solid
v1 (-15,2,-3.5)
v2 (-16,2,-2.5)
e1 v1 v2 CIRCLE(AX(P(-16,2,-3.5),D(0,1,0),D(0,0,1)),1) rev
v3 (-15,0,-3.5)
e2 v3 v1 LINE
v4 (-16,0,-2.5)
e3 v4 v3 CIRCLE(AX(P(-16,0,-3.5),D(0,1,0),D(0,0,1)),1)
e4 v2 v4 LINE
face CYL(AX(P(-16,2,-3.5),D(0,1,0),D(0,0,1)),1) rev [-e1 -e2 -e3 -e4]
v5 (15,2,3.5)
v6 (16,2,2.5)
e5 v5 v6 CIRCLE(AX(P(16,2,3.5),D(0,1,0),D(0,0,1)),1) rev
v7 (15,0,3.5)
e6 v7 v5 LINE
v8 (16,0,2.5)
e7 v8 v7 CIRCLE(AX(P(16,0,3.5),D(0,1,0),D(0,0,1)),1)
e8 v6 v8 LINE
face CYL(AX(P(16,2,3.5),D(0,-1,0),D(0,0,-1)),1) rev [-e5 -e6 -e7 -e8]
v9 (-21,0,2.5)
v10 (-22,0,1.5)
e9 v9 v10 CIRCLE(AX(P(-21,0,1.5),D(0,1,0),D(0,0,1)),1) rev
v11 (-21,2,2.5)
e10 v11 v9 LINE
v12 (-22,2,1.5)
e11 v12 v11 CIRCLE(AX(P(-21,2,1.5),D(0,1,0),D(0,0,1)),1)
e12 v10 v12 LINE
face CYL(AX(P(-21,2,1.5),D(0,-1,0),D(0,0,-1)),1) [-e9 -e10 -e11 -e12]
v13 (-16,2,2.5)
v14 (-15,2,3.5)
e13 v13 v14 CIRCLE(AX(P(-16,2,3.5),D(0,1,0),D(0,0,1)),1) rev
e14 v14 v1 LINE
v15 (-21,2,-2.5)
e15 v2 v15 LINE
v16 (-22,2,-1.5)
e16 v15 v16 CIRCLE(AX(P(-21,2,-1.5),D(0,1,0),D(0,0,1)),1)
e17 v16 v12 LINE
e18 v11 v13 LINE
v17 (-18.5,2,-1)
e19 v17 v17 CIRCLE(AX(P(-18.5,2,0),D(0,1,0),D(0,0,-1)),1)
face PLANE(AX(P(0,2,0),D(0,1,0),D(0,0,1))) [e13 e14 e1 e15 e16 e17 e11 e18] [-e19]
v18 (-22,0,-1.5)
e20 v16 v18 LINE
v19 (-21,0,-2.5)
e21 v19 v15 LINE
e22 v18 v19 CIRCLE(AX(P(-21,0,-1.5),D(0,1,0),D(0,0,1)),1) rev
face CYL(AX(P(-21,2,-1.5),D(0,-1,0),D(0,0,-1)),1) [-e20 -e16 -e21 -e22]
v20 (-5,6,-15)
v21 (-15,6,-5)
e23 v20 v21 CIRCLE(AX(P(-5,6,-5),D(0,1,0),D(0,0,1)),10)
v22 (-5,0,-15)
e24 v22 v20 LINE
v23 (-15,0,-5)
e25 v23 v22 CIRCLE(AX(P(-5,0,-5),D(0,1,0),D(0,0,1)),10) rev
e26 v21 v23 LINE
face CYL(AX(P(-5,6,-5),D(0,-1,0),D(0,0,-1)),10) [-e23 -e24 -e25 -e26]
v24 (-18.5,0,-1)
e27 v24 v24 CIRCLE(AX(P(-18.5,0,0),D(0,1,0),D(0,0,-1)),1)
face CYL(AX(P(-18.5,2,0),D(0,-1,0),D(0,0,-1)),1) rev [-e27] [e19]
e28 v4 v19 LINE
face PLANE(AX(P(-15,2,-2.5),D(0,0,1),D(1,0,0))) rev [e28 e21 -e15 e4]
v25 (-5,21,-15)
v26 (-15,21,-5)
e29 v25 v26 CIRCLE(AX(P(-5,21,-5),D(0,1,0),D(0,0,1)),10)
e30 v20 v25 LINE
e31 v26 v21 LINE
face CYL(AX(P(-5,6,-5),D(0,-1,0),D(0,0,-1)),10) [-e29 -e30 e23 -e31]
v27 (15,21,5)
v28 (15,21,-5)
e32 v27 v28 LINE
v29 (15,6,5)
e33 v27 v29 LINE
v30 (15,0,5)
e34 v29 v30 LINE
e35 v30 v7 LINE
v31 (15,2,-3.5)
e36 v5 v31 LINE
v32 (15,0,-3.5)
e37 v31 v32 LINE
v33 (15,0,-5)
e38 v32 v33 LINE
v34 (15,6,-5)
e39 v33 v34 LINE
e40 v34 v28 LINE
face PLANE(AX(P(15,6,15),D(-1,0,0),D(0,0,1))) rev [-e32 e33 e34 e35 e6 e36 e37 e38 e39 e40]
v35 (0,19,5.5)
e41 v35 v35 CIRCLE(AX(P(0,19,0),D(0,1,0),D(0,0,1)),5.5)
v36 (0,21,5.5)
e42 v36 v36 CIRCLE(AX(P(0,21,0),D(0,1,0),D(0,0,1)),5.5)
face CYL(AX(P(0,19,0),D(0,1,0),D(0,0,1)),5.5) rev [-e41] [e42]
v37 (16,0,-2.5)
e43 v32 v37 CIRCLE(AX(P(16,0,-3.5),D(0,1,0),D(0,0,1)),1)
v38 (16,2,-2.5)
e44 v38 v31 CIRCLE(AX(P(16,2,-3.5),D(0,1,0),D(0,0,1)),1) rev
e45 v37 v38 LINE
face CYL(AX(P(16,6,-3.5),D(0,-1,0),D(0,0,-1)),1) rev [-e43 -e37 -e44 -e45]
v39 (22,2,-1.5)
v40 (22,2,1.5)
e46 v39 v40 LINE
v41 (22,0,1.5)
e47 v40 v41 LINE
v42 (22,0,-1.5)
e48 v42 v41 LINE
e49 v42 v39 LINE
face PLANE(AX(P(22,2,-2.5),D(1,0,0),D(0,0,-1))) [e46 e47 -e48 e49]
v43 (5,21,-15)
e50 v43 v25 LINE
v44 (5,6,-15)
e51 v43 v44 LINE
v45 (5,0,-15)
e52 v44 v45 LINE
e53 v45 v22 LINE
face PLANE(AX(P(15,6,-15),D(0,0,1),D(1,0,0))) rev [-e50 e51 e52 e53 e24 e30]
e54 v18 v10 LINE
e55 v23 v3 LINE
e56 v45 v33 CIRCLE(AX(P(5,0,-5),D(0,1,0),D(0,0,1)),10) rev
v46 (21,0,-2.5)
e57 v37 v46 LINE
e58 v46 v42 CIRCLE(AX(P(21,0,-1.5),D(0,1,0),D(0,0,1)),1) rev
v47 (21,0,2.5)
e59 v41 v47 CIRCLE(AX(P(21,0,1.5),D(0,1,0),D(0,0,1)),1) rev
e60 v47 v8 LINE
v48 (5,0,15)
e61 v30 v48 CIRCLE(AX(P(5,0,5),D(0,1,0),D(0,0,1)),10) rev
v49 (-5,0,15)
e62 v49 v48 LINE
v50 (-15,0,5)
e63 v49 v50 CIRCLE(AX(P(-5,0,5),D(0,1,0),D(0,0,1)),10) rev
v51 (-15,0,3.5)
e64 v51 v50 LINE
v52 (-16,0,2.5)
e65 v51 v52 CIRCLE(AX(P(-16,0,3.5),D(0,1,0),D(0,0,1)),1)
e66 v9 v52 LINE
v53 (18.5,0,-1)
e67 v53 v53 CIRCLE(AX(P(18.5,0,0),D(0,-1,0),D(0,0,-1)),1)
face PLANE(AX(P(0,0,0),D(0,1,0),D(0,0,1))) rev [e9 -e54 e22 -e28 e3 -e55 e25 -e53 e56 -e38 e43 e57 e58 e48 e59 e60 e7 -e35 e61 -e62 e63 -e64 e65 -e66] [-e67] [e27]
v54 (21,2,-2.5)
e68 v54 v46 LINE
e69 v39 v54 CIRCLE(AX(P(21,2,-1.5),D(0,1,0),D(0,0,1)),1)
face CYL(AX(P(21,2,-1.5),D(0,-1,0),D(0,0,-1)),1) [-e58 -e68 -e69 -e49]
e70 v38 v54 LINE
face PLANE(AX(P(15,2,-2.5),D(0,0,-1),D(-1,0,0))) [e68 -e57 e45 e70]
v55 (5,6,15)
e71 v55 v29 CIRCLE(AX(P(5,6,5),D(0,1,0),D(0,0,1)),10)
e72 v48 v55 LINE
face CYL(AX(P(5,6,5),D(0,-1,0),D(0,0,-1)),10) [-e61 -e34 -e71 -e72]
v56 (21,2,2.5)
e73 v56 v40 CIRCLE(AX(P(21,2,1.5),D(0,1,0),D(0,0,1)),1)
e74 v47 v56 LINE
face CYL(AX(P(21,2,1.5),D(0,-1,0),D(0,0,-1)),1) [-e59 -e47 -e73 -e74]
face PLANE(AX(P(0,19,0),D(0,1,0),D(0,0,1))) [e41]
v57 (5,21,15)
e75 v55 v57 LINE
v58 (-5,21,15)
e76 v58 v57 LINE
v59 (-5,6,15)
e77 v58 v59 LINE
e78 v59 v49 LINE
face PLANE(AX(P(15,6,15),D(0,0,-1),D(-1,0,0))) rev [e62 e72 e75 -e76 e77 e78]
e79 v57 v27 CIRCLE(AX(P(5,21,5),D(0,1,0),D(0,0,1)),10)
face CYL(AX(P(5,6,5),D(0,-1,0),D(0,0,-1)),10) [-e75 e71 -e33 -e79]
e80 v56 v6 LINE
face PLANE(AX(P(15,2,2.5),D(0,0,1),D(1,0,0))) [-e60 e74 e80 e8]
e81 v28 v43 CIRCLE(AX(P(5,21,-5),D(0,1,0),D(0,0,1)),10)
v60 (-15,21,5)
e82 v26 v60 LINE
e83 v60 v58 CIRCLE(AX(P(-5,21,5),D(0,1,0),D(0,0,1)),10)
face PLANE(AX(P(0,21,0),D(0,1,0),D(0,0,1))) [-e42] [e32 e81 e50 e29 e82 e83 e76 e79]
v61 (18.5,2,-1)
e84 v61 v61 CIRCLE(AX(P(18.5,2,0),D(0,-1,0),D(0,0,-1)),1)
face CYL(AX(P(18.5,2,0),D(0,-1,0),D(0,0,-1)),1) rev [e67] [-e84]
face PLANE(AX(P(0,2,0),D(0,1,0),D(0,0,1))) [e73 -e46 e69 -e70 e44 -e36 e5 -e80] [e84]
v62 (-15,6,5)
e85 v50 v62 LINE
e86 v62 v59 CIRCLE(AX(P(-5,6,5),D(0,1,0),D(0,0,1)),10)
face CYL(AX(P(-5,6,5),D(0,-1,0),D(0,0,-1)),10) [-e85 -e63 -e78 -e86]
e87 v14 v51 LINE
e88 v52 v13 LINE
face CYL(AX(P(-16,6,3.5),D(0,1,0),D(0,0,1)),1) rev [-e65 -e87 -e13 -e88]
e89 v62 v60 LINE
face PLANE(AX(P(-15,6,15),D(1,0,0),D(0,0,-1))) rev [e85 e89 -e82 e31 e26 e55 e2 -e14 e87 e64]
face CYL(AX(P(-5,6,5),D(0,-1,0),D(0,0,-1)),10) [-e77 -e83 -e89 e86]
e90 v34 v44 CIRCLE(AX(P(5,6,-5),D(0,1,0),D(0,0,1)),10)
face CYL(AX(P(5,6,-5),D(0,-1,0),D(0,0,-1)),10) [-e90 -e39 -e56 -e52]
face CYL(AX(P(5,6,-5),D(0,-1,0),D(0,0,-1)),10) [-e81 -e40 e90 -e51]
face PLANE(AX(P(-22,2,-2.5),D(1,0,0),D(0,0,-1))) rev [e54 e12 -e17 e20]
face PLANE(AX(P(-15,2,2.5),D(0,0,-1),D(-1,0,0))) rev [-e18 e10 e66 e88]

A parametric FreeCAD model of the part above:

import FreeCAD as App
import Part
import Sketcher
from FreeCAD import Vector


def edges_at(feature, points):
    """Names of the edges that pass closest to the given points."""
    edges = feature.Shape.Edges
    near = lambda p: min(range(len(edges)), key=lambda i: edges[i].distToShape(Part.Vertex(*p))[0])
    return sorted({f"Edge{near(p) + 1}" for p in points})

doc = App.newDocument("Part")
params = doc.addObject("Spreadsheet::Sheet", "Params")
for row, (alias, value) in enumerate([
    ("sketch1_width", "30 mm"),
    ("pad1_length", "6 mm"),
    ("fillet_radius", "10 mm"),
    ("sketch2_diameter", "2 mm"),
    ("sketch2_width", "7 mm"),
    ("sketch2_height", "5 mm"),
    ("pad2_length", "2 mm"),
    ("fillet2_radius", "1 mm"),
    ("sketch3_width", "30 mm"),
    ("pad3_length", "15 mm"),
    ("fillet3_radius", "10 mm"),
    ("sketch4_diameter", "11 mm"),
    ("pocket1_length", "2 mm"),
], start=1):
    params.set(f"A{row}", alias)
    params.set(f"B{row}", "=" + value)
    params.setAlias(f"B{row}", alias)

body = doc.addObject("PartDesign::Body", "Body")

# Sketch on XZ plane
sketch1 = doc.addObject("Sketcher::SketchObject", "Sketch")
body.addObject(sketch1)
sketch1.AttachmentSupport = (doc.XZ_Plane, [""])
sketch1.MapMode = "FlatFace"
sketch1.addGeometry([
    Part.LineSegment(Vector(-15, -15, 0), Vector(-15, 15, 0)),
    Part.LineSegment(Vector(-15, 15, 0), Vector(15, 15, 0)),
    Part.LineSegment(Vector(15, 15, 0), Vector(15, -15, 0)),
    Part.LineSegment(Vector(15, -15, 0), Vector(-15, -15, 0)),
], False)
sketch1.addConstraint([
    Sketcher.Constraint("Coincident", 0, 2, 1, 1),
    Sketcher.Constraint("Coincident", 1, 2, 2, 1),
    Sketcher.Constraint("Coincident", 2, 2, 3, 1),
    Sketcher.Constraint("Coincident", 3, 2, 0, 1),
    Sketcher.Constraint("Vertical", 0),
    Sketcher.Constraint("Horizontal", 1),
    Sketcher.Constraint("Vertical", 2),
    Sketcher.Constraint("Horizontal", 3),
    Sketcher.Constraint("Symmetric", 0, 2, 2, 2, -1, 1),
    Sketcher.Constraint("Equal", 3, 0),
    Sketcher.Constraint("DistanceX", 1, 1, 1, 2, 30.0),
])
sketch1.setExpression("Constraints[10]", "Params.sketch1_width")
pad1 = doc.addObject("PartDesign::Pad", "Pad")
body.addObject(pad1)
pad1.Profile = sketch1
pad1.setExpression("Length", "Params.pad1_length")
pad1.Reversed = True
doc.recompute()

fillet = doc.addObject("PartDesign::Fillet", "Fillet")
body.addObject(fillet)
fillet.Base = (pad1, edges_at(pad1, [
    (-15, 3, -15),
    (15, 3, -15),
    (15, 3, 15),
    (-15, 3, 15),
]))
fillet.setExpression("Radius", "Params.fillet_radius")

# Sketch on XZ plane
sketch2 = doc.addObject("Sketcher::SketchObject", "Sketch001")
body.addObject(sketch2)
sketch2.AttachmentSupport = (doc.XZ_Plane, [""])
sketch2.MapMode = "FlatFace"
sketch2.addGeometry([
    Part.LineSegment(Vector(15, 2.5, 0), Vector(15, -2.5, 0)),  # 0
    Part.LineSegment(Vector(15, -2.5, 0), Vector(22, -2.5, 0)),  # 1
    Part.LineSegment(Vector(22, -2.5, 0), Vector(22, 2.5, 0)),  # 2
    Part.LineSegment(Vector(22, 2.5, 0), Vector(15, 2.5, 0)),  # 3
    Part.Circle(Vector(18.5, 0, 0), Vector(0, 0, 1), 1),  # 4
], False)
sketch2.addConstraint([
    Sketcher.Constraint("Coincident", 0, 2, 1, 1),
    Sketcher.Constraint("Coincident", 1, 2, 2, 1),
    Sketcher.Constraint("Coincident", 2, 2, 3, 1),
    Sketcher.Constraint("Coincident", 3, 2, 0, 1),
    Sketcher.Constraint("Vertical", 0),
    Sketcher.Constraint("Horizontal", 1),
    Sketcher.Constraint("Vertical", 2),
    Sketcher.Constraint("Horizontal", 3),
    Sketcher.Constraint("PointOnObject", 4, 3, -1),
    Sketcher.Constraint("Diameter", 4, 2.0),
    Sketcher.Constraint("DistanceX", 1, 1, 1, 2, 7.0),
    Sketcher.Constraint("DistanceY", 0, 2, 0, 1, 5.0),
    Sketcher.Constraint("DistanceX", -1, 1, 0, 2, 15.0),
    Sketcher.Constraint("DistanceX", -1, 1, 4, 3, 18.5),
    Sketcher.Constraint("DistanceY", 0, 2, -1, 1, 2.5),
])
sketch2.setExpression("Constraints[9]", "Params.sketch2_diameter")
sketch2.setExpression("Constraints[10]", "Params.sketch2_width")
sketch2.setExpression("Constraints[11]", "Params.sketch2_height")
pad2 = doc.addObject("PartDesign::Pad", "Pad001")
body.addObject(pad2)
pad2.Profile = sketch2
pad2.setExpression("Length", "Params.pad2_length")
pad2.Reversed = True
doc.recompute()

mirrored = doc.addObject("PartDesign::Mirrored", "Mirrored")
body.addObject(mirrored)
mirrored.Originals = [pad2]
mirrored.MirrorPlane = (doc.YZ_Plane, [""])
body.Tip = mirrored
doc.recompute()

fillet2 = doc.addObject("PartDesign::Fillet", "Fillet001")
body.addObject(fillet2)
fillet2.Base = (mirrored, edges_at(mirrored, [
    (15, 1, -2.5),
    (15, 1, 2.5),
    (22, 1, 2.5),
    (22, 1, -2.5),
    (-15, 1, 2.5),
    (-15, 1, -2.5),
    (-22, 1, -2.5),
    (-22, 1, 2.5),
]))
fillet2.setExpression("Radius", "Params.fillet2_radius")

# Sketch on XZ plane
sketch3 = doc.addObject("Sketcher::SketchObject", "Sketch002")
body.addObject(sketch3)
sketch3.AttachmentSupport = (doc.XZ_Plane, [""])
sketch3.MapMode = "FlatFace"
sketch3.AttachmentOffset = App.Placement(Vector(0, 0, -6), App.Rotation())
sketch3.addGeometry([
    Part.LineSegment(Vector(-15, -15, 0), Vector(-15, 15, 0)),
    Part.LineSegment(Vector(-15, 15, 0), Vector(15, 15, 0)),
    Part.LineSegment(Vector(15, 15, 0), Vector(15, -15, 0)),
    Part.LineSegment(Vector(15, -15, 0), Vector(-15, -15, 0)),
], False)
sketch3.addConstraint([
    Sketcher.Constraint("Coincident", 0, 2, 1, 1),
    Sketcher.Constraint("Coincident", 1, 2, 2, 1),
    Sketcher.Constraint("Coincident", 2, 2, 3, 1),
    Sketcher.Constraint("Coincident", 3, 2, 0, 1),
    Sketcher.Constraint("Vertical", 0),
    Sketcher.Constraint("Horizontal", 1),
    Sketcher.Constraint("Vertical", 2),
    Sketcher.Constraint("Horizontal", 3),
    Sketcher.Constraint("Symmetric", 0, 2, 2, 2, -1, 1),
    Sketcher.Constraint("Equal", 3, 0),
    Sketcher.Constraint("DistanceX", 1, 1, 1, 2, 30.0),
])
sketch3.setExpression("Constraints[10]", "Params.sketch3_width")
pad3 = doc.addObject("PartDesign::Pad", "Pad002")
body.addObject(pad3)
pad3.Profile = sketch3
pad3.setExpression("Length", "Params.pad3_length")
pad3.Reversed = True
doc.recompute()

fillet3 = doc.addObject("PartDesign::Fillet", "Fillet002")
body.addObject(fillet3)
fillet3.Base = (pad3, edges_at(pad3, [
    (15, 13.5, 15),
    (15, 13.5, -15),
    (-15, 13.5, -15),
    (-15, 13.5, 15),
]))
fillet3.setExpression("Radius", "Params.fillet3_radius")

# Sketch on XZ plane
sketch4 = doc.addObject("Sketcher::SketchObject", "Sketch003")
body.addObject(sketch4)
sketch4.AttachmentSupport = (doc.XZ_Plane, [""])
sketch4.MapMode = "FlatFace"
sketch4.AttachmentOffset = App.Placement(Vector(0, 0, -21), App.Rotation())
sketch4.addGeometry(Part.Circle(Vector(0, 0, 0), Vector(0, 0, 1), 6), False)
sketch4.addConstraint([
    Sketcher.Constraint("Coincident", 0, 3, -1, 1),
    Sketcher.Constraint("Diameter", 0, 11.0),
])
sketch4.setExpression("Constraints[1]", "Params.sketch4_diameter")
pocket1 = doc.addObject("PartDesign::Pocket", "Pocket")
body.addObject(pocket1)
pocket1.Profile = sketch4
pocket1.setExpression("Length", "Params.pocket1_length")
pocket1.Reversed = True

doc.recompute()
